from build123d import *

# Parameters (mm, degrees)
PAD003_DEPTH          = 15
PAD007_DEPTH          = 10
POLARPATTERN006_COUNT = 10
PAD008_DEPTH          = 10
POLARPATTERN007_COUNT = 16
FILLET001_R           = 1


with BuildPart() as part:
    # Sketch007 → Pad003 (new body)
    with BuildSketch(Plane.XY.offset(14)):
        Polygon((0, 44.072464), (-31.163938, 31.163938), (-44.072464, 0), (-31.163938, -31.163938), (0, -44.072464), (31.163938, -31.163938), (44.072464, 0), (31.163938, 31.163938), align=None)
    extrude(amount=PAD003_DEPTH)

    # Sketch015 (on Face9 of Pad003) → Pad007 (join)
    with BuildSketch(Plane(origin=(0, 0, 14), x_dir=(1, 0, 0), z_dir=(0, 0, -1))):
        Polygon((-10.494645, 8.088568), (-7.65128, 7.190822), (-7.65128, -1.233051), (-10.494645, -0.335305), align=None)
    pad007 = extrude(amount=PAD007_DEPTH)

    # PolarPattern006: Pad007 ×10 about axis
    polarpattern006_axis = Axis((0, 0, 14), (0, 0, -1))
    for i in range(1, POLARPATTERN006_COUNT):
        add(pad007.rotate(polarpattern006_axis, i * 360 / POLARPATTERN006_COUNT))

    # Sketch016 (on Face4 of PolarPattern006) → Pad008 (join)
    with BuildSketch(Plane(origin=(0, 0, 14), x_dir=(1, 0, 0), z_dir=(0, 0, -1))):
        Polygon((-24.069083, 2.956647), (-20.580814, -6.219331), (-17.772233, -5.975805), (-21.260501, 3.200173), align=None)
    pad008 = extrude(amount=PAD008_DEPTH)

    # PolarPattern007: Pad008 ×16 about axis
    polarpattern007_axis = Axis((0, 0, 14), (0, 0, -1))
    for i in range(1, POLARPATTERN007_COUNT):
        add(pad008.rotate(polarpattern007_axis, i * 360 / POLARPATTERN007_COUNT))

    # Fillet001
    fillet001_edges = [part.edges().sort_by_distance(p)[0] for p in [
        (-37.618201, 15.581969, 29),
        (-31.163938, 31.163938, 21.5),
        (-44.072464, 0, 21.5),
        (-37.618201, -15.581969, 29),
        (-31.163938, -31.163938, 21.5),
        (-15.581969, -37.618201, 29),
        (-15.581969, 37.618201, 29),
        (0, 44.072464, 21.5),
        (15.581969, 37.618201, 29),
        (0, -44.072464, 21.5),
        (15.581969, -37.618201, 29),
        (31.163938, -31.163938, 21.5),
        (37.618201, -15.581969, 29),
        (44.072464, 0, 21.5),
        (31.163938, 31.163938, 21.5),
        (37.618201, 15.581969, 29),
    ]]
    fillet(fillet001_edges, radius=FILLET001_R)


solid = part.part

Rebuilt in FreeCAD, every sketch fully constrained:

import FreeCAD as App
import Part
import Sketcher
from FreeCAD import Vector
Q = App.Units.Quantity


def edges_at(feature, points):
    """Names of the edges that pass closest to the given points."""
    edges = feature.Shape.Edges
    near = lambda p: min(range(len(edges)), key=lambda i: edges[i].distToShape(Part.Vertex(*p))[0])
    return sorted({f"Edge{near(p) + 1}" for p in points})

doc = App.newDocument("Part")
body = doc.addObject("PartDesign::Body", "Body")

sketch1 = body.newObject("Sketcher::SketchObject", "Sketch")
sketch1.AttachmentSupport = (doc.getObject("XY_Plane"), [""])
sketch1.MapMode = "FlatFace"
sketch1.AttachmentOffset = App.Placement(Vector(0, 0, 14), App.Rotation())
sketch1.addGeometry([
    Part.LineSegment(Vector(0, 44.072464, 0), Vector(-31.163938, 31.163938, 0)),
    Part.LineSegment(Vector(-31.163938, 31.163938, 0), Vector(-44.072464, 0, 0)),
    Part.LineSegment(Vector(-44.072464, 0, 0), Vector(-31.163938, -31.163938, 0)),
    Part.LineSegment(Vector(-31.163938, -31.163938, 0), Vector(0, -44.072464, 0)),
    Part.LineSegment(Vector(0, -44.072464, 0), Vector(31.163938, -31.163938, 0)),
    Part.LineSegment(Vector(31.163938, -31.163938, 0), Vector(44.072464, 0, 0)),
    Part.LineSegment(Vector(44.072464, 0, 0), Vector(31.163938, 31.163938, 0)),
    Part.LineSegment(Vector(31.163938, 31.163938, 0), Vector(0, 44.072464, 0)),
], False)
sketch1.addConstraint([
    Sketcher.Constraint("Coincident", 0, 2, 1, 1),
    Sketcher.Constraint("Coincident", 1, 2, 2, 1),
    Sketcher.Constraint("Coincident", 2, 2, 3, 1),
    Sketcher.Constraint("Coincident", 3, 2, 4, 1),
    Sketcher.Constraint("Coincident", 4, 2, 5, 1),
    Sketcher.Constraint("Coincident", 5, 2, 6, 1),
    Sketcher.Constraint("Coincident", 6, 2, 7, 1),
    Sketcher.Constraint("Coincident", 7, 2, 0, 1),
    Sketcher.Constraint("Symmetric", 0, 2, 4, 2, -1, 1),
    Sketcher.Constraint("Symmetric", 1, 2, 5, 2, -1, 1),
    Sketcher.Constraint("Symmetric", 2, 2, 6, 2, -1, 1),
    Sketcher.Constraint("Symmetric", 3, 2, 7, 2, -1, 1),
    Sketcher.Constraint("Symmetric", 2, 2, 4, 2, -2),
    Sketcher.Constraint("PointOnObject", 1, 2, -1),
    Sketcher.Constraint("PointOnObject", 3, 2, -2),
    Sketcher.Constraint("Perpendicular", 0, 2),
    Sketcher.Constraint("Equal", 0, 1),
    Sketcher.Constraint("Angle", 0, Q("-157.5 deg")),
    Sketcher.Constraint("DistanceY", 3, 2, 0, 2, Q("75.236402 mm")),
])
pad1 = body.newObject("PartDesign::Pad", "Pad")
pad1.Profile = sketch1
pad1.Length = 15

sketch2 = body.newObject("Sketcher::SketchObject", "Sketch001")
sketch2.AttachmentSupport = (doc.getObject("XY_Plane"), [""])
sketch2.MapMode = "FlatFace"
sketch2.AttachmentOffset = App.Placement(Vector(0, 0, 14), App.Rotation())
sketch2.addGeometry([
    Part.LineSegment(Vector(-7.65128, -7.190822, 0), Vector(-10.494645, -8.088568, 0)),
    Part.LineSegment(Vector(-10.494645, -8.088568, 0), Vector(-10.494645, 0.335305, 0)),
    Part.LineSegment(Vector(-10.494645, 0.335305, 0), Vector(-7.65128, 1.233051, 0)),
    Part.LineSegment(Vector(-7.65128, 1.233051, 0), Vector(-7.65128, -7.190822, 0)),
], False)
sketch2.addConstraint([
    Sketcher.Constraint("Coincident", 0, 2, 1, 1),
    Sketcher.Constraint("Coincident", 1, 2, 2, 1),
    Sketcher.Constraint("Coincident", 2, 2, 3, 1),
    Sketcher.Constraint("Coincident", 3, 2, 0, 1),
    Sketcher.Constraint("Vertical", 1),
    Sketcher.Constraint("Vertical", 3),
    Sketcher.Constraint("Parallel", 0, 2),
    Sketcher.Constraint("DistanceY", 1, 1, 1, 2, Q("8.423873 mm")),
    Sketcher.Constraint("DistanceX", 2, 2, -1, 1, Q("7.65128 mm")),
    Sketcher.Constraint("DistanceY", -1, 1, 2, 2, Q("1.233051 mm")),
    Sketcher.Constraint("DistanceY", 0, 2, 2, 2, Q("9.321619 mm")),
    Sketcher.Constraint("Distance", 0, Q("2.981723 mm")),
])
pad2 = body.newObject("PartDesign::Pad", "Pad001")
pad2.Profile = sketch2
pad2.Length = 10
pad2.Reversed = True
doc.recompute()

polarpattern = body.newObject("PartDesign::PolarPattern", "PolarPattern")
polarpattern.Originals = [pad2]
polarpattern.Axis = (doc.getObject("Z_Axis"), [""])
polarpattern.Angle = 360
polarpattern.Occurrences = 10
body.Tip = polarpattern

sketch3 = body.newObject("Sketcher::SketchObject", "Sketch002")
sketch3.AttachmentSupport = (doc.getObject("XY_Plane"), [""])
sketch3.MapMode = "FlatFace"
sketch3.AttachmentOffset = App.Placement(Vector(0, 0, 14), App.Rotation())
sketch3.addGeometry([
    Part.LineSegment(Vector(-24.069083, -2.956647, 0), Vector(-20.580814, 6.219331, 0)),
    Part.LineSegment(Vector(-20.580814, 6.219331, 0), Vector(-17.772233, 5.975805, 0)),
    Part.LineSegment(Vector(-17.772233, 5.975805, 0), Vector(-21.260501, -3.200173, 0)),
    Part.LineSegment(Vector(-21.260501, -3.200173, 0), Vector(-24.069083, -2.956647, 0)),
], False)
sketch3.addConstraint([
    Sketcher.Constraint("Coincident", 0, 2, 1, 1),
    Sketcher.Constraint("Coincident", 1, 2, 2, 1),
    Sketcher.Constraint("Coincident", 2, 2, 3, 1),
    Sketcher.Constraint("Coincident", 3, 2, 0, 1),
    Sketcher.Constraint("Parallel", 0, 2),
    Sketcher.Constraint("Parallel", 1, 3),
    Sketcher.Constraint("DistanceX", 2, 2, -1, 1, Q("21.260501 mm")),
    Sketcher.Constraint("Distance", 0, Q("9.816649 mm")),
    Sketcher.Constraint("Distance", 1, Q("2.819119 mm")),
    Sketcher.Constraint("DistanceY", -1, 1, 0, 2, Q("6.219331 mm")),
    Sketcher.Constraint("DistanceX", 0, 2, 1, 2, Q("2.808581 mm")),
    Sketcher.Constraint("DistanceX", 2, 2, 1, 2, Q("3.488268 mm")),
])
pad3 = body.newObject("PartDesign::Pad", "Pad002")
pad3.Profile = sketch3
pad3.Length = 10
pad3.Reversed = True
doc.recompute()

polarpattern2 = body.newObject("PartDesign::PolarPattern", "PolarPattern001")
polarpattern2.Originals = [pad3]
polarpattern2.Axis = (doc.getObject("Z_Axis"), [""])
polarpattern2.Angle = 360
polarpattern2.Occurrences = 16
body.Tip = polarpattern2
doc.recompute()

fillet = body.newObject("PartDesign::Fillet", "Fillet")
fillet.Base = (polarpattern2, edges_at(polarpattern2, [
    (-37.618, 15.582, 29),
    (-31.164, 31.164, 21.5),
    (-44.072, 0, 21.5),
    (-37.618, -15.582, 29),
    (-31.164, -31.164, 21.5),
    (-15.582, -37.618, 29),
    (-15.582, 37.618, 29),
    (0, 44.072, 21.5),
    (15.582, 37.618, 29),
    (0, -44.072, 21.5),
    (15.582, -37.618, 29),
    (31.164, -31.164, 21.5),
    (37.618, -15.582, 29),
    (44.072, 0, 21.5),
    (31.164, 31.164, 21.5),
    (37.618, 15.582, 29),
]))
fillet.Radius = 1

doc.recompute()
